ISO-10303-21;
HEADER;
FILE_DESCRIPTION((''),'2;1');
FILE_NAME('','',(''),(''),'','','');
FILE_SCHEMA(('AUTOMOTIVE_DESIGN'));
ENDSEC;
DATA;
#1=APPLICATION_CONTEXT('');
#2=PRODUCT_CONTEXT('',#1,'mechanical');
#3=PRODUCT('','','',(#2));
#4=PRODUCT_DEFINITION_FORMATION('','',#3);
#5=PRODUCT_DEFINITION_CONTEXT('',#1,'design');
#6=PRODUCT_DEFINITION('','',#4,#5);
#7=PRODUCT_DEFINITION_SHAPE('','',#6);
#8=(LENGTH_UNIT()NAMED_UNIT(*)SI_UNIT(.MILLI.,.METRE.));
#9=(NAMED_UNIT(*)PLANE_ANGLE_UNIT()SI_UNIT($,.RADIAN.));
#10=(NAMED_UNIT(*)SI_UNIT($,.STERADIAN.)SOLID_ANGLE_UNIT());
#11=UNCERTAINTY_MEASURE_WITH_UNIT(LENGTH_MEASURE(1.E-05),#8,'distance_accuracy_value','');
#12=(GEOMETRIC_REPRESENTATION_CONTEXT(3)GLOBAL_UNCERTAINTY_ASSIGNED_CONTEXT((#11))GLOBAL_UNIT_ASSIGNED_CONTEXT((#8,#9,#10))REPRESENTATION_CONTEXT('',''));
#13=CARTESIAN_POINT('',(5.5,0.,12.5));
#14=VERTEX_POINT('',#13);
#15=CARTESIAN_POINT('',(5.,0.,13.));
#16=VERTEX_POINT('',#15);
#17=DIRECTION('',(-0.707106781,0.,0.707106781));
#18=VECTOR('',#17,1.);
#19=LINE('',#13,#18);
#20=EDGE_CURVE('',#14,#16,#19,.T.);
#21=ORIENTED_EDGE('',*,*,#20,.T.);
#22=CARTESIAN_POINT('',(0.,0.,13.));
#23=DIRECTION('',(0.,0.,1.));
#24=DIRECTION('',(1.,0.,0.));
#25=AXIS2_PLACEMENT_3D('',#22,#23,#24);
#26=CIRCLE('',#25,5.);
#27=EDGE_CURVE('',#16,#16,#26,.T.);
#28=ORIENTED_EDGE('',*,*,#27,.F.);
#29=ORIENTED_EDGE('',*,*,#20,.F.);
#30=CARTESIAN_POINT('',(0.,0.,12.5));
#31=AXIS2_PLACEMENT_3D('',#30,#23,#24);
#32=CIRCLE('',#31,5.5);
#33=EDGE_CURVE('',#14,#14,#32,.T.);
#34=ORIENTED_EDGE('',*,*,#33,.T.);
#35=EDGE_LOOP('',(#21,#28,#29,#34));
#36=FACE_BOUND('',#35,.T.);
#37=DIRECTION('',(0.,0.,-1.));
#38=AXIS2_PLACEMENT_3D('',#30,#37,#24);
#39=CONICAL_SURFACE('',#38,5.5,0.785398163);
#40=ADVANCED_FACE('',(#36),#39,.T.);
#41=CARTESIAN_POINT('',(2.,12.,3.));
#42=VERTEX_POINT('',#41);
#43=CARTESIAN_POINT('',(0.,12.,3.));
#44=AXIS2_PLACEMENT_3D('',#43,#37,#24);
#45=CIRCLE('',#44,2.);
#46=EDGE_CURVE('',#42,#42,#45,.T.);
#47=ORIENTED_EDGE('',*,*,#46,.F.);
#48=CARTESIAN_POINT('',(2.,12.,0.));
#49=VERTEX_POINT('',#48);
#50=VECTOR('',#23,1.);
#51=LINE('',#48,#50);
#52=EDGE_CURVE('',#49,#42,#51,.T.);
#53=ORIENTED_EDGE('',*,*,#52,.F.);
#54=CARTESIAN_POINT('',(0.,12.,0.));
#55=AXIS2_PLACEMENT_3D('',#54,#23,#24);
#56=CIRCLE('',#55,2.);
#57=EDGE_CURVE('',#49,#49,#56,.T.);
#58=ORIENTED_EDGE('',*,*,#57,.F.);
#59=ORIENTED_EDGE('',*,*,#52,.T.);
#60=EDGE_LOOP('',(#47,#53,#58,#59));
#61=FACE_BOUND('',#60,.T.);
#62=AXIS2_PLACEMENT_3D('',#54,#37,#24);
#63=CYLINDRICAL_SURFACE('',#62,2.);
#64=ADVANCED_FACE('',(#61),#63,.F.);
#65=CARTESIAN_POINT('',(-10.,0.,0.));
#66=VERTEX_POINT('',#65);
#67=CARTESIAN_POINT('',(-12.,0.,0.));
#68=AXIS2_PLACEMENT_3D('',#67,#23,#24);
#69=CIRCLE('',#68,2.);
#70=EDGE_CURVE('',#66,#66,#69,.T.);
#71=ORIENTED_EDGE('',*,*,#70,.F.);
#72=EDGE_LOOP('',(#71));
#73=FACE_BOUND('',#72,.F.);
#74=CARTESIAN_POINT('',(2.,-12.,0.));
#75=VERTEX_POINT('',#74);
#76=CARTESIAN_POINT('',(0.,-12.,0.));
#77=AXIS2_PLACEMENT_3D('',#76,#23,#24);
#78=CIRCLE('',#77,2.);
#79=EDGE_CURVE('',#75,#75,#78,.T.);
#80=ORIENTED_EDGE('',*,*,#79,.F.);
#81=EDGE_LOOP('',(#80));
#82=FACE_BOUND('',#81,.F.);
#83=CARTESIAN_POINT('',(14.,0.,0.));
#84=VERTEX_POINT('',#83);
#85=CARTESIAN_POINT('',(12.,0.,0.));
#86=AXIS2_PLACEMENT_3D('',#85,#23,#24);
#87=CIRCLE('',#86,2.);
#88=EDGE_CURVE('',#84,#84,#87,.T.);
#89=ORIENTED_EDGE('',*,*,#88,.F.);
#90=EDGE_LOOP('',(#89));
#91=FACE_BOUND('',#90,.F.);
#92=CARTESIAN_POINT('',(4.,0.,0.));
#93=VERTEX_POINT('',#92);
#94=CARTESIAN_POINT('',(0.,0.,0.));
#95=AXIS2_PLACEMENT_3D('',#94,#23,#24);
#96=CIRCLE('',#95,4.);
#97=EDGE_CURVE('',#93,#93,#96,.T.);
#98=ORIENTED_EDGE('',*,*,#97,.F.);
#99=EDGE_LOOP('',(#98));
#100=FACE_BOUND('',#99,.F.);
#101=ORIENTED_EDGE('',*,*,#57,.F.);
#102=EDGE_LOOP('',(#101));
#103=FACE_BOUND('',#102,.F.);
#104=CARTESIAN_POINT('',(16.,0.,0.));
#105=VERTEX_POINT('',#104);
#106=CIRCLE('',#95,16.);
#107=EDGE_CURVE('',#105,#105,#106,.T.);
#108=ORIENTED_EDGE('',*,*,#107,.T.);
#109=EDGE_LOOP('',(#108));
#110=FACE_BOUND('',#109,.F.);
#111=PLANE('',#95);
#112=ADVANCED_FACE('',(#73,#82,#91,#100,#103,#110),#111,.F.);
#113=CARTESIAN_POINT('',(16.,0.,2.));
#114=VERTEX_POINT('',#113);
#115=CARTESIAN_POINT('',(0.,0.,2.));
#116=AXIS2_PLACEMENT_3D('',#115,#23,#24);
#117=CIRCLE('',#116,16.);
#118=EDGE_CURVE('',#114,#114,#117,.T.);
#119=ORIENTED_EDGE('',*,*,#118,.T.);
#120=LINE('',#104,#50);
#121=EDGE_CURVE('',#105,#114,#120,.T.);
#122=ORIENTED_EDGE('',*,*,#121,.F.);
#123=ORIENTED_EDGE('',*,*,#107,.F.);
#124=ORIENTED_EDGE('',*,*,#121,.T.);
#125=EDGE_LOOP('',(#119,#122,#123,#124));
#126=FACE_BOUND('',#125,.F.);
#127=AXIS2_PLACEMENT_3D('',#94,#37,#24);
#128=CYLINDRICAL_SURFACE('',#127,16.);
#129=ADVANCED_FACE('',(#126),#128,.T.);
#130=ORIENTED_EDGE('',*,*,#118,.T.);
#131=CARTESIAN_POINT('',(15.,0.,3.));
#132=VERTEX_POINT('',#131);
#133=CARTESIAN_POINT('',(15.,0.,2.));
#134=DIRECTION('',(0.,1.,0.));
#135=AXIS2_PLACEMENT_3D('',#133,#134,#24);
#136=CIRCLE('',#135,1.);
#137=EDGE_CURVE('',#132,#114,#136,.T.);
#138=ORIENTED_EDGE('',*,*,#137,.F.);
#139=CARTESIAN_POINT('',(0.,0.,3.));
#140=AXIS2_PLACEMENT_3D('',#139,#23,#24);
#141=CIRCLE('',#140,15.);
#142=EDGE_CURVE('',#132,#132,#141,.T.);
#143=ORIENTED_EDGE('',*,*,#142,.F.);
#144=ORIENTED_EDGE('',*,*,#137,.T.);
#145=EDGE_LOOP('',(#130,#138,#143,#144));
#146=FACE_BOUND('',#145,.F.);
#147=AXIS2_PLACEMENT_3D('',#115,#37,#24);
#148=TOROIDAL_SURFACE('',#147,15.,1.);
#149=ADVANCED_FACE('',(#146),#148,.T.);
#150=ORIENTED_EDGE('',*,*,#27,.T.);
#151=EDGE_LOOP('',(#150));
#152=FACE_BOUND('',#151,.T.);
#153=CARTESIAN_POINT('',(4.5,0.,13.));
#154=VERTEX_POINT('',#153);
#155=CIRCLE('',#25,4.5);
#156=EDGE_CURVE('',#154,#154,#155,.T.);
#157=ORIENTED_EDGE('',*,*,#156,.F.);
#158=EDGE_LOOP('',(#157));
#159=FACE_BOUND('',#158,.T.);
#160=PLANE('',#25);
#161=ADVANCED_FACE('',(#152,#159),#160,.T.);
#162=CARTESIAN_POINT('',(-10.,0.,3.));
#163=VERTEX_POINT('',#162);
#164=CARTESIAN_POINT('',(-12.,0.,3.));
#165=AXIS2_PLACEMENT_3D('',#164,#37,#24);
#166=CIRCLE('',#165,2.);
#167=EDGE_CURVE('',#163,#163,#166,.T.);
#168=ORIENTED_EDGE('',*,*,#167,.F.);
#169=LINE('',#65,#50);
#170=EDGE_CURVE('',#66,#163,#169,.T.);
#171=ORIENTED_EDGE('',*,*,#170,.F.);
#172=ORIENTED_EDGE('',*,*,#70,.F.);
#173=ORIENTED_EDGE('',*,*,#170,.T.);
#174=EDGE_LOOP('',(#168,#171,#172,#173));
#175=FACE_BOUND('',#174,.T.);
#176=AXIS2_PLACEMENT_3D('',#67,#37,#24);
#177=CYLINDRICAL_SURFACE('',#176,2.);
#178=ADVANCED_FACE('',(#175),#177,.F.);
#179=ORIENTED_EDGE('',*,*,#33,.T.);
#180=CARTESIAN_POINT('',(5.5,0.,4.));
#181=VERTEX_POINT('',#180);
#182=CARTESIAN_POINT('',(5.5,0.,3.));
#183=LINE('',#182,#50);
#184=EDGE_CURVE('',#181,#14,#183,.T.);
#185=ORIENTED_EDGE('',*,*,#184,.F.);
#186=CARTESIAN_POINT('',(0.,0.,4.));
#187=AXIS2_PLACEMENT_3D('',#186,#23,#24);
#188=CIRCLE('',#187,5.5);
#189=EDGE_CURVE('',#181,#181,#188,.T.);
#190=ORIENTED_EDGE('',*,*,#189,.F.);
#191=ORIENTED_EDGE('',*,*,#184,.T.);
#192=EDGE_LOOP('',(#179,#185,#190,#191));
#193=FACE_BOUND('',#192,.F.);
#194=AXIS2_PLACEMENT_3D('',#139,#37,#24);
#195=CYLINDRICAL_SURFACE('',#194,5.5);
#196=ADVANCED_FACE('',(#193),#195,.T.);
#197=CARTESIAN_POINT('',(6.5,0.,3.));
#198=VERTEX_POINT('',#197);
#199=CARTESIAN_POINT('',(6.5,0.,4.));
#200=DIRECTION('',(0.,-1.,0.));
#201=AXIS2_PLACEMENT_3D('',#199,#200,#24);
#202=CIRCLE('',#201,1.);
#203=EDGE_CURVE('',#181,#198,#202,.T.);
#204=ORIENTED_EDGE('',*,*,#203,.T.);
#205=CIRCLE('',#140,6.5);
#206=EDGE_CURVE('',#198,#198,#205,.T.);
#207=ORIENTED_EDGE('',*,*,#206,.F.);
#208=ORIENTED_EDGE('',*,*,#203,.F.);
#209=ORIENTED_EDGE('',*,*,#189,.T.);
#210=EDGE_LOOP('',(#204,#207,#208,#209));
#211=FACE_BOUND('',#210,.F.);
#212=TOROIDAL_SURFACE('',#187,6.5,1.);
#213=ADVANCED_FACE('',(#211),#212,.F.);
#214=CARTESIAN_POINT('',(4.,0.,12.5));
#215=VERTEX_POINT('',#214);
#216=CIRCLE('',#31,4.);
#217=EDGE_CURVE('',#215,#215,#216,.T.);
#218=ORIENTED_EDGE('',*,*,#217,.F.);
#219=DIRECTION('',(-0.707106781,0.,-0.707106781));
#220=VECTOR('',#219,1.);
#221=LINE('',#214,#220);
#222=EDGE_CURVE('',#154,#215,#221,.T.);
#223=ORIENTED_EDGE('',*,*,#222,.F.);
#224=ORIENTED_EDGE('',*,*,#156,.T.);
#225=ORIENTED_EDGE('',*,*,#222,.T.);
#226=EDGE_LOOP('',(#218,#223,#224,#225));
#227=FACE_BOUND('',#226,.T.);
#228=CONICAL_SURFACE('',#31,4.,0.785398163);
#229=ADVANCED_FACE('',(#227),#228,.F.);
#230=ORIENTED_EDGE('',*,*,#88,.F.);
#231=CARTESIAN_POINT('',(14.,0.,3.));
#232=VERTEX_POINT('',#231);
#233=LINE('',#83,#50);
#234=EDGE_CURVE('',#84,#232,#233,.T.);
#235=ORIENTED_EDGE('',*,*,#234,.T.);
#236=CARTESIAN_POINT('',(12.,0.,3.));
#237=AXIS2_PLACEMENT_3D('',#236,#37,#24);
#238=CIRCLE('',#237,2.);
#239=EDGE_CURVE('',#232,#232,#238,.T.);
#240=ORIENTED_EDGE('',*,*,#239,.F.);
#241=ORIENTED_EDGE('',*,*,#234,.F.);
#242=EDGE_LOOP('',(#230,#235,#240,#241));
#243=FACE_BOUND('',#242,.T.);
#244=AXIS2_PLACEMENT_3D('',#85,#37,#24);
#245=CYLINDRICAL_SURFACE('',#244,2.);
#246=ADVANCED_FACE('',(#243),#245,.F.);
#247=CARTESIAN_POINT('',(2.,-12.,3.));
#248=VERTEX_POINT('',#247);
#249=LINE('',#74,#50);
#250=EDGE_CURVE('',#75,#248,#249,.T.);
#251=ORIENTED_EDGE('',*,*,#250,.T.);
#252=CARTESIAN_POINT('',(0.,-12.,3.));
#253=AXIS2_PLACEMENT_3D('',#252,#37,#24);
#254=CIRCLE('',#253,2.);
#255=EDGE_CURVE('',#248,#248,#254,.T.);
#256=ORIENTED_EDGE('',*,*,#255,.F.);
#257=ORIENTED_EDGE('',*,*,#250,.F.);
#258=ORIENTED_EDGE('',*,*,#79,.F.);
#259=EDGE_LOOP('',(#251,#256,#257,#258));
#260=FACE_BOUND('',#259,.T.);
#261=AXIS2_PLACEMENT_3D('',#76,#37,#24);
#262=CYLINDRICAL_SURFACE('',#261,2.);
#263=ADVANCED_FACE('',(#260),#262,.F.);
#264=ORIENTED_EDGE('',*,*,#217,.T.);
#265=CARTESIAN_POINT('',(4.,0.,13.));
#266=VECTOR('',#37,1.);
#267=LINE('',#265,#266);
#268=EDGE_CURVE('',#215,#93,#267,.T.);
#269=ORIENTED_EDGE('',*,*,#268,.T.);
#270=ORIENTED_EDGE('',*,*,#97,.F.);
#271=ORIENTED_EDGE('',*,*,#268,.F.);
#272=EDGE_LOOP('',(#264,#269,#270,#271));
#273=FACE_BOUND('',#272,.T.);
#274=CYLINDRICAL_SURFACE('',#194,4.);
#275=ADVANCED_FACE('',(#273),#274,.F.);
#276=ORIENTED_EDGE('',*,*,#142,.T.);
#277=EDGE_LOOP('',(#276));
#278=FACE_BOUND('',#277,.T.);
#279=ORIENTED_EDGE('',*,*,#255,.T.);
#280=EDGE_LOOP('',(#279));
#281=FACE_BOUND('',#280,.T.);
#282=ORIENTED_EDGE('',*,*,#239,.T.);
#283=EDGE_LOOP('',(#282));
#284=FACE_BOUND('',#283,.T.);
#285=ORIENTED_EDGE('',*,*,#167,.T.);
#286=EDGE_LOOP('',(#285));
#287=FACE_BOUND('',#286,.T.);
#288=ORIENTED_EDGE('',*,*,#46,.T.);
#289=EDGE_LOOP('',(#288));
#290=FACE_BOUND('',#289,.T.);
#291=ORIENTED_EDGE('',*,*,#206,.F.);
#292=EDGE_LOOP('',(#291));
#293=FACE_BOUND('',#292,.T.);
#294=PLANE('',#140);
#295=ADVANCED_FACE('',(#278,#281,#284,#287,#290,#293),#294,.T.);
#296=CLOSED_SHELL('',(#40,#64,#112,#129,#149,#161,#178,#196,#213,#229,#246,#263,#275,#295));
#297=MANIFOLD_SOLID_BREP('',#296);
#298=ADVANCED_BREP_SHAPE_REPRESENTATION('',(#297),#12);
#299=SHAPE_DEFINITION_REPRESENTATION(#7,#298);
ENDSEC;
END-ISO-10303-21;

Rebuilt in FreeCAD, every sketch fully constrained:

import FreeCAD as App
import Part
import Sketcher

V = App.Vector


def edges_at(feature, points):
    """Names of the edges that pass closest to the given points."""
    edges = feature.Shape.Edges
    near = lambda p: min(range(len(edges)), key=lambda i: edges[i].distToShape(Part.Vertex(*p))[0])
    return sorted({f"Edge{near(p) + 1}" for p in points})

doc = App.newDocument("Part")
params = doc.addObject("Spreadsheet::Sheet", "Params")
for row, (alias, value) in enumerate([
    ("sketch1_diameter", "32 mm"),
    ("sketch1_diameter2", "4 mm"),
    ("sketch1_diameter3", "8 mm"),
    ("pad1_length", "3 mm"),
    ("sketch2_diameter", "11 mm"),
    ("sketch2_diameter2", "8 mm"),
    ("pad2_length", "10 mm"),
    ("fillet_radius", "1 mm"),
    ("chamfer_size", "0.5 mm"),
], start=1):
    params.set(f"A{row}", alias)
    params.set(f"B{row}", "=" + value)
    params.setAlias(f"B{row}", alias)

body = doc.addObject("PartDesign::Body", "Body")

sketch1 = body.newObject("Sketcher::SketchObject", "Sketch")
sketch1.AttachmentSupport = (doc.getObject("XY_Plane"), [""])
sketch1.MapMode = "FlatFace"
sketch1.addGeometry([
    Part.Circle(V(0, 0, 0), V(0, 0, 1), 16),
    Part.Circle(V(0, 12, 0), V(0, 0, 1), 2),
    Part.Circle(V(-12, 0, 0), V(0, 0, 1), 2),
    Part.Circle(V(0, -12, 0), V(0, 0, 1), 2),
    Part.Circle(V(12, 0, 0), V(0, 0, 1), 2),
    Part.Circle(V(0, 0, 0), V(0, 0, 1), 4),
], False)
sketch1.addConstraint([
    Sketcher.Constraint("Coincident", 0, 3, -1, 1),
    Sketcher.Constraint("Coincident", 5, 3, -1, 1),
    Sketcher.Constraint("Equal", 1, 2),
    Sketcher.Constraint("Equal", 2, 3),
    Sketcher.Constraint("Equal", 3, 4),
    Sketcher.Constraint("Symmetric", 1, 3, 3, 3, -1, 1),
    Sketcher.Constraint("Symmetric", 2, 3, 4, 3, -1, 1),
    Sketcher.Constraint("PointOnObject", 1, 3, -2),
    Sketcher.Constraint("PointOnObject", 2, 3, -1),
    Sketcher.Constraint("Diameter", 0, 32.0),
    Sketcher.Constraint("Diameter", 1, 4.0),
    Sketcher.Constraint("Diameter", 5, 8.0),
    Sketcher.Constraint("DistanceY", 3, 3, 1, 3, 24.0),
    Sketcher.Constraint("DistanceX", 2, 3, 4, 3, 24.0),
])
sketch1.setExpression("Constraints[9]", "Params.sketch1_diameter")
sketch1.setExpression("Constraints[10]", "Params.sketch1_diameter2")
sketch1.setExpression("Constraints[11]", "Params.sketch1_diameter3")
pad1 = body.newObject("PartDesign::Pad", "Pad")
pad1.Profile = sketch1
pad1.setExpression("Length", "Params.pad1_length")

sketch2 = body.newObject("Sketcher::SketchObject", "Sketch001")
sketch2.AttachmentSupport = (doc.getObject("XY_Plane"), [""])
sketch2.MapMode = "FlatFace"
sketch2.AttachmentOffset = App.Placement(V(0, 0, 3), App.Rotation())
sketch2.addGeometry([
    Part.Circle(V(0, 0, 0), V(0, 0, 1), 5.5),
    Part.Circle(V(0, 0, 0), V(0, 0, 1), 4),
], False)
sketch2.addConstraint([
    Sketcher.Constraint("Coincident", 0, 3, -1, 1),
    Sketcher.Constraint("Coincident", 1, 3, -1, 1),
    Sketcher.Constraint("Diameter", 0, 11.0),
    Sketcher.Constraint("Diameter", 1, 8.0),
])
sketch2.setExpression("Constraints[2]", "Params.sketch2_diameter")
sketch2.setExpression("Constraints[3]", "Params.sketch2_diameter2")
pad2 = body.newObject("PartDesign::Pad", "Pad001")
pad2.Profile = sketch2
pad2.setExpression("Length", "Params.pad2_length")
doc.recompute()

fillet = body.newObject("PartDesign::Fillet", "Fillet")
fillet.Base = (pad2, edges_at(pad2, [(-16, 0, 3), (-5.5, 0, 3)]))
fillet.setExpression("Radius", "Params.fillet_radius")
doc.recompute()

chamfer = body.newObject("PartDesign::Chamfer", "Chamfer")
chamfer.Base = (fillet, edges_at(fillet, [(-5.5, 0, 13), (-4, 0, 13)]))
chamfer.setExpression("Size", "Params.chamfer_size")

doc.recompute()
